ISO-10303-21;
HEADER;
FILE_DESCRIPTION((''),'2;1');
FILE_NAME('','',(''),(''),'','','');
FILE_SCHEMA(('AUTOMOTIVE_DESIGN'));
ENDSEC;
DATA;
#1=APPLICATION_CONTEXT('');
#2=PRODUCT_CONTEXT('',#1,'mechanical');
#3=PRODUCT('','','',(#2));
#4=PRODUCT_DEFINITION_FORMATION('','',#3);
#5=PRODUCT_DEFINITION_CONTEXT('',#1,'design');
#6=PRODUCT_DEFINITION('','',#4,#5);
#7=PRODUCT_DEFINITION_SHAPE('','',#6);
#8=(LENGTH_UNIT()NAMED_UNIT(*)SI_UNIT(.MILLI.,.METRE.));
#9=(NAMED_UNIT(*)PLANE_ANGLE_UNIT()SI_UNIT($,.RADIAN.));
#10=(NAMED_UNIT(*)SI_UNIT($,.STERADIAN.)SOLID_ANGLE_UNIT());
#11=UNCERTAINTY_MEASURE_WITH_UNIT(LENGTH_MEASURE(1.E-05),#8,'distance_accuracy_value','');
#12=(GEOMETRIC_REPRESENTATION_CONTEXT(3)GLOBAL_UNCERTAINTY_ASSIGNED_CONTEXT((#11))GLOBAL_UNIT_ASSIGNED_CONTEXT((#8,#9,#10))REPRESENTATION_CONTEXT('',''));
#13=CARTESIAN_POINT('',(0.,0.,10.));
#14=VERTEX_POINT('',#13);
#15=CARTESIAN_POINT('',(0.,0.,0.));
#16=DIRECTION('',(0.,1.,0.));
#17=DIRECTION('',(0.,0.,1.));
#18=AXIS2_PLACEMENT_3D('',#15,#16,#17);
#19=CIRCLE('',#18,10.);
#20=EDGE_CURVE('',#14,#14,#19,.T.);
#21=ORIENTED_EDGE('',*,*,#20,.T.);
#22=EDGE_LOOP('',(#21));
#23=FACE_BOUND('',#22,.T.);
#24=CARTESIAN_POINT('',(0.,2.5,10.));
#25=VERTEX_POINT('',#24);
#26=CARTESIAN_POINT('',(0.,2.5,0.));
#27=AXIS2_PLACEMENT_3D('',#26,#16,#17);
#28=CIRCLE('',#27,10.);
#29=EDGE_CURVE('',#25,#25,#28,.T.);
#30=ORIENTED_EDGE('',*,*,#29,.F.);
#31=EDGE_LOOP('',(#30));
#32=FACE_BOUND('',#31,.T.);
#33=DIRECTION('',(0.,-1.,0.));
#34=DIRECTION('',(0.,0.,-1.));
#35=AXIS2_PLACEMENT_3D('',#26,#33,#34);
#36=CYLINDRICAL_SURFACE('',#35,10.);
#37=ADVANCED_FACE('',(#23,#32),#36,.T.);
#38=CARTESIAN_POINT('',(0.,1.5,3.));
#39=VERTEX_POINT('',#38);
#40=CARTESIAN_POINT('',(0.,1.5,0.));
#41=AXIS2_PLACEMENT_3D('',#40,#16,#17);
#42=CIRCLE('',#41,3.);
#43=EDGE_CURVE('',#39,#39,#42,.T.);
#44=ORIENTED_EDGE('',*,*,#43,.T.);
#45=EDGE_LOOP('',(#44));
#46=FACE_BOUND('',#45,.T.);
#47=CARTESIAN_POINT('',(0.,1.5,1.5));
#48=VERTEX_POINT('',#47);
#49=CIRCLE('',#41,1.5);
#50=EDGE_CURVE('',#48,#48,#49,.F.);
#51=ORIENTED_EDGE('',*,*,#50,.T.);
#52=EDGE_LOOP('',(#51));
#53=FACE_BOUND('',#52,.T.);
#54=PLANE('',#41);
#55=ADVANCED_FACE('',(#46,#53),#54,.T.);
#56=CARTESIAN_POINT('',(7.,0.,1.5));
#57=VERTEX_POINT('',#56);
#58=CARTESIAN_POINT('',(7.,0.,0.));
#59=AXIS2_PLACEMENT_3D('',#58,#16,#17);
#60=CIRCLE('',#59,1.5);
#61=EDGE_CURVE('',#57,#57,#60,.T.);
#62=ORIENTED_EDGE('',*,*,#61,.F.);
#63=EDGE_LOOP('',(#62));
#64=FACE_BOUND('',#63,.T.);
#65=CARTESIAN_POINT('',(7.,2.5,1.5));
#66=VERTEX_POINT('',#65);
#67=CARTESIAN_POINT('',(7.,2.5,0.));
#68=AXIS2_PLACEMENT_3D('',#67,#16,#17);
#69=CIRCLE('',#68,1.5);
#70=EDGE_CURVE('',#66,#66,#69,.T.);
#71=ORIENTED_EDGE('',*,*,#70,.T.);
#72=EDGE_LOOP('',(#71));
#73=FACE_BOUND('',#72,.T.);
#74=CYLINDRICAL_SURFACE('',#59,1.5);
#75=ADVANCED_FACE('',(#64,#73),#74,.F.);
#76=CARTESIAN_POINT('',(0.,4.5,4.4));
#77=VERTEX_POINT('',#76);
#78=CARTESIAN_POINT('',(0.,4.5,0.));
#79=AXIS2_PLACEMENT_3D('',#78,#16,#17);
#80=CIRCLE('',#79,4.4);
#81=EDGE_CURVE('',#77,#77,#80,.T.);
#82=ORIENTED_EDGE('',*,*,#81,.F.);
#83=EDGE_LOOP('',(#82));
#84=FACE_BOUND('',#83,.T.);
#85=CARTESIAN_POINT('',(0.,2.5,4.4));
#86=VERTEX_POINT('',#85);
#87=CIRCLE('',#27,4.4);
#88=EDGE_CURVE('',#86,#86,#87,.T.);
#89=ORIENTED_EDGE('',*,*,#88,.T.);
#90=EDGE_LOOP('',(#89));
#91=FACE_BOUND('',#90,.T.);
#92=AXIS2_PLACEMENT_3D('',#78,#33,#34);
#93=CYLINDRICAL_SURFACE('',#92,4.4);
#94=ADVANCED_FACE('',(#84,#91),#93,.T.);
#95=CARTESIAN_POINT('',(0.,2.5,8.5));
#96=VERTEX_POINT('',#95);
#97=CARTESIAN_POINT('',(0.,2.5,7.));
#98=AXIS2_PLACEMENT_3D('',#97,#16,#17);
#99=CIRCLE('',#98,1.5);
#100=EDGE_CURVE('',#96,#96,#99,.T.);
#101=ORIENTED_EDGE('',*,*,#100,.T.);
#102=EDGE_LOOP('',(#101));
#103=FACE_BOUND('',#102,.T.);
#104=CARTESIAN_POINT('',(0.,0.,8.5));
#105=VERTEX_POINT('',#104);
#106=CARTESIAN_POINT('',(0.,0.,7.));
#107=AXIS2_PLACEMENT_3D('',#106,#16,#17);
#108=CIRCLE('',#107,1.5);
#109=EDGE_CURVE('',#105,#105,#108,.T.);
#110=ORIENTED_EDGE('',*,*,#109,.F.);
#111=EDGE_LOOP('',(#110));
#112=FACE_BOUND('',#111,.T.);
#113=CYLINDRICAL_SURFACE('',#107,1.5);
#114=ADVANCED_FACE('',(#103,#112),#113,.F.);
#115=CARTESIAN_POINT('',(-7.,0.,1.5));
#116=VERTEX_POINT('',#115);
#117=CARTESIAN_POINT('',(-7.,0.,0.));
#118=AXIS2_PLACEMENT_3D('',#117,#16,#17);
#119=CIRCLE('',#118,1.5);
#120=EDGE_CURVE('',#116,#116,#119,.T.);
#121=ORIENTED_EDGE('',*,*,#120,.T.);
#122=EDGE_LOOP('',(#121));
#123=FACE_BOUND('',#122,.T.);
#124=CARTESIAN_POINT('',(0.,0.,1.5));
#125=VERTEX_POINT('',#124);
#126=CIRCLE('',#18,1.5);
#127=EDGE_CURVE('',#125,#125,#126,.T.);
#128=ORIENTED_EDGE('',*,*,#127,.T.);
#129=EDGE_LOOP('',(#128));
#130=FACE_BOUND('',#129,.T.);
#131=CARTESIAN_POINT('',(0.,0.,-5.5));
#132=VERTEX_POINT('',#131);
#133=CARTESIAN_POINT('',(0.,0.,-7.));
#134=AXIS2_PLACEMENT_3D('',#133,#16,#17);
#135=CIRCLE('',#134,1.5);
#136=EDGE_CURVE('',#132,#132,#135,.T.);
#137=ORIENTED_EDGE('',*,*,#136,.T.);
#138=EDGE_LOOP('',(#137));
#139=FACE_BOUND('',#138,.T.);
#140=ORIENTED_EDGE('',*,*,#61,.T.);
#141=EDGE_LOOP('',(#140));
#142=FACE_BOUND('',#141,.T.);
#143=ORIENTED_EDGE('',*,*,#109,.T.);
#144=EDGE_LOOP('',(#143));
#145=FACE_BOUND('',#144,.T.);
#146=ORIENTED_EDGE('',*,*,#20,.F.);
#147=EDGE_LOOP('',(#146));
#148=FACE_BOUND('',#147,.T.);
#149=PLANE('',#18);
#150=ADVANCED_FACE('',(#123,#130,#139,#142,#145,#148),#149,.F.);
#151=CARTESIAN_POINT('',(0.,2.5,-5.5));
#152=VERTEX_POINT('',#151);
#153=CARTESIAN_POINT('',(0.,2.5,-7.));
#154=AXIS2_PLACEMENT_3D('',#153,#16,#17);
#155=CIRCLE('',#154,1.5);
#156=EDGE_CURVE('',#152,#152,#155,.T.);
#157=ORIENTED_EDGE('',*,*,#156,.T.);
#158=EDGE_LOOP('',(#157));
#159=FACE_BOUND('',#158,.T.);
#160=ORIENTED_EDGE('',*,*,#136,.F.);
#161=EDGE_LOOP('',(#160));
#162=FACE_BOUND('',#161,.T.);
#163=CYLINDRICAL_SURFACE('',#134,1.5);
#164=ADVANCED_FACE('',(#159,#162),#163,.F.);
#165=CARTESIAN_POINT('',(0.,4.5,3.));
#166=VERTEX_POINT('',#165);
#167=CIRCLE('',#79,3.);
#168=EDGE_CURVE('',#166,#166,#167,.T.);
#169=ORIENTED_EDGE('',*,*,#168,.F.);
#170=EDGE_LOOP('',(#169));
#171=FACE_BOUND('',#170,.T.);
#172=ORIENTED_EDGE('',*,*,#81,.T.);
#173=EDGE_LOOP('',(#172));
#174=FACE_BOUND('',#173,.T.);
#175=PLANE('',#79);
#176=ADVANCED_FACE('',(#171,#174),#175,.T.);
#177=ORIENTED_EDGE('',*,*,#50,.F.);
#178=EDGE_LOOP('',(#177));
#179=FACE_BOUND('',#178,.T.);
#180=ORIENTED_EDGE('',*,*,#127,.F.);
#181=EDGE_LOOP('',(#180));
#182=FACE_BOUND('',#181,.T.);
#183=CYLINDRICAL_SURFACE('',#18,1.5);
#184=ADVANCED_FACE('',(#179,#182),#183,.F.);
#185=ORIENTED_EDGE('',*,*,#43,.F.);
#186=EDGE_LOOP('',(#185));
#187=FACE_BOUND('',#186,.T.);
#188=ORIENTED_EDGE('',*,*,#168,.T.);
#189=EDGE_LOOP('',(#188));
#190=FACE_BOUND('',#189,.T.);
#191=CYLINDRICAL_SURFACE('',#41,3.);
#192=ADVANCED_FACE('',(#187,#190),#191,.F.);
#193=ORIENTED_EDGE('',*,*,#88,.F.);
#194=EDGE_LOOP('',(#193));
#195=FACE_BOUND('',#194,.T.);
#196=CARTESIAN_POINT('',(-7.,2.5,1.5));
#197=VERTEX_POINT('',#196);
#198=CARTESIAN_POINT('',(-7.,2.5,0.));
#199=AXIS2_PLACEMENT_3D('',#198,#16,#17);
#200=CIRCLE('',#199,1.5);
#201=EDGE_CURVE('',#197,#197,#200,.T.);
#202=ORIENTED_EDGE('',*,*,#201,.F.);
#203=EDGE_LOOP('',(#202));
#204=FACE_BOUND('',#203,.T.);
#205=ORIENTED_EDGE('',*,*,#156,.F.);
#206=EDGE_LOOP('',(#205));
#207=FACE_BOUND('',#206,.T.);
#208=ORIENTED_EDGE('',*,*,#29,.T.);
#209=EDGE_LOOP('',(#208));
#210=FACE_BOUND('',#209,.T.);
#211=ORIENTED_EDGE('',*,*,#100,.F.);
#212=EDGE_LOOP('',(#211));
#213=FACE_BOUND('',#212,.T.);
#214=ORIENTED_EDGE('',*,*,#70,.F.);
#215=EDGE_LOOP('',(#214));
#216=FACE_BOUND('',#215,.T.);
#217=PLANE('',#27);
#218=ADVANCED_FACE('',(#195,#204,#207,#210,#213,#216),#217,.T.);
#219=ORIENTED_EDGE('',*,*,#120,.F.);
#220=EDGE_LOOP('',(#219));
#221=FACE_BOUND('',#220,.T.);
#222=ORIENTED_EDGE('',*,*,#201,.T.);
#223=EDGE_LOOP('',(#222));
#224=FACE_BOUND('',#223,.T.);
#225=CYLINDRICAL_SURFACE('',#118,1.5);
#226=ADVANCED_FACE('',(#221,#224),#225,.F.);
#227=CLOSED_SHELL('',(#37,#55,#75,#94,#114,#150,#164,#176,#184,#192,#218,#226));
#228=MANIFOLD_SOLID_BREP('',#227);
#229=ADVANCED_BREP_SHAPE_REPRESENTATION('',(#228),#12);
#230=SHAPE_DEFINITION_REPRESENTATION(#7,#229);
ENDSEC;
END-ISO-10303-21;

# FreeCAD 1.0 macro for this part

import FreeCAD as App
import Part
import Sketcher

V = App.Vector
Q = App.Units.Quantity

doc = App.newDocument("Part")
body = doc.addObject("PartDesign::Body", "Body")

# Sketch on XZ plane
sketch1 = body.newObject("Sketcher::SketchObject", "Sketch")
sketch1.AttachmentSupport = (doc.getObject("XZ_Plane"), [""])
sketch1.MapMode = "FlatFace"
sketch1.addGeometry(Part.Circle(V(0, 0, 0), V(0, 0, 1), 10), False)
sketch1.addConstraint(Sketcher.Constraint("Coincident", 0, 3, -1, 1))
sketch1.addConstraint(Sketcher.Constraint("Diameter", 0, Q("20 mm")))
pad1 = body.newObject("PartDesign::Pad", "Pad")
pad1.Profile = sketch1
pad1.Length = 2.5
pad1.Reversed = True

# Sketch on XZ plane
sketch2 = body.newObject("Sketcher::SketchObject", "Sketch001")
sketch2.AttachmentSupport = (doc.getObject("XZ_Plane"), [""])
sketch2.MapMode = "FlatFace"
sketch2.AttachmentOffset = App.Placement(V(0, 0, -2.5), App.Rotation())
sketch2.addGeometry(Part.Circle(V(0, -7, 0), V(0, 0, 1), 1.5), False)
sketch2.addGeometry(Part.Circle(V(0, 0, 0), V(0, 0, 1), 1.5), False)
sketch2.addGeometry(Part.Circle(V(7, 0, 0), V(0, 0, 1), 1.5), False)
sketch2.addGeometry(Part.Circle(V(-7, 0, 0), V(0, 0, 1), 1.5), False)
sketch2.addGeometry(Part.Circle(V(0, 7, 0), V(0, 0, 1), 1.5), False)
sketch2.addConstraint(Sketcher.Constraint("Coincident", 1, 3, -1, 1))
sketch2.addConstraint(Sketcher.Constraint("Equal", 0, 1))
sketch2.addConstraint(Sketcher.Constraint("Equal", 1, 2))
sketch2.addConstraint(Sketcher.Constraint("Equal", 2, 3))
sketch2.addConstraint(Sketcher.Constraint("Equal", 3, 4))
sketch2.addConstraint(Sketcher.Constraint("Symmetric", 2, 3, 3, 3, -1, 1))
sketch2.addConstraint(Sketcher.Constraint("Symmetric", 0, 3, 4, 3, -1, 1))
sketch2.addConstraint(Sketcher.Constraint("PointOnObject", 0, 3, -2))
sketch2.addConstraint(Sketcher.Constraint("PointOnObject", 2, 3, -1))
sketch2.addConstraint(Sketcher.Constraint("Diameter", 0, Q("3 mm")))
sketch2.addConstraint(Sketcher.Constraint("DistanceY", 0, 3, -1, 1, Q("7 mm")))
sketch2.addConstraint(Sketcher.Constraint("DistanceX", -1, 1, 2, 3, Q("7 mm")))
pocket1 = body.newObject("PartDesign::Pocket", "Pocket")
pocket1.Profile = sketch2
pocket1.Length = 2.5
pocket1.Reversed = True

# Sketch on XZ plane
sketch3 = body.newObject("Sketcher::SketchObject", "Sketch002")
sketch3.AttachmentSupport = (doc.getObject("XZ_Plane"), [""])
sketch3.MapMode = "FlatFace"
sketch3.AttachmentOffset = App.Placement(V(0, 0, -2.5), App.Rotation())
sketch3.addGeometry(Part.Circle(V(0, 0, 0), V(0, 0, 1), 4.4), False)
sketch3.addConstraint(Sketcher.Constraint("Coincident", 0, 3, -1, 1))
sketch3.addConstraint(Sketcher.Constraint("Diameter", 0, Q("8.8 mm")))
pad2 = body.newObject("PartDesign::Pad", "Pad001")
pad2.Profile = sketch3
pad2.Length = 2
pad2.Reversed = True

# Sketch on XZ plane
sketch4 = body.newObject("Sketcher::SketchObject", "Sketch003")
sketch4.AttachmentSupport = (doc.getObject("XZ_Plane"), [""])
sketch4.MapMode = "FlatFace"
sketch4.AttachmentOffset = App.Placement(V(0, 0, -4.5), App.Rotation())
sketch4.addGeometry(Part.Circle(V(0, 0, 0), V(0, 0, 1), 3), False)
sketch4.addConstraint(Sketcher.Constraint("Coincident", 0, 3, -1, 1))
sketch4.addConstraint(Sketcher.Constraint("Diameter", 0, Q("6 mm")))
pocket2 = body.newObject("PartDesign::Pocket", "Pocket001")
pocket2.Profile = sketch4
pocket2.Length = 3
pocket2.Reversed = True

doc.recompute()
